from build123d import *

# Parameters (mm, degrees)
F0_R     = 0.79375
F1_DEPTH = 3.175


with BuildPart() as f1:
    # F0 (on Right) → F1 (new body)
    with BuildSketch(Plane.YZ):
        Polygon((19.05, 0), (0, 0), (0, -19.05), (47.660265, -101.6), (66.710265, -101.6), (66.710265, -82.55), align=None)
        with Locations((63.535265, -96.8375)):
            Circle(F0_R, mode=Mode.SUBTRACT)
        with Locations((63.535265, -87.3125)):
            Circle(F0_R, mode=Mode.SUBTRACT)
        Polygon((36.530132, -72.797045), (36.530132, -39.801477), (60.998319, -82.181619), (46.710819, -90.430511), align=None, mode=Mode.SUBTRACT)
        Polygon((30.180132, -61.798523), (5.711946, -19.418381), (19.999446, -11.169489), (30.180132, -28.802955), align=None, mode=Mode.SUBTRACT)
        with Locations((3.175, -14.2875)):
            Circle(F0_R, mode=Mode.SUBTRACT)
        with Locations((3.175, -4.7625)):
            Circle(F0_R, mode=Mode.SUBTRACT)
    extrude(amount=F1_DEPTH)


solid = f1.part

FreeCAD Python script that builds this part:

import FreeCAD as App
import Part
import Sketcher
from FreeCAD import Vector
Q = App.Units.Quantity


def add_polygon(sketch, points):
    """Adds a closed chain of lines whose ends are joined by coincident constraints."""
    first, n = sketch.GeometryCount, len(points)
    for a, b in zip(points, points[1:] + points[:1]):
        sketch.addGeometry(Part.LineSegment(App.Vector(*a, 0), App.Vector(*b, 0)), False)
    for i in range(n):
        sketch.addConstraint(Sketcher.Constraint("Coincident", first + i, 2, first + (i + 1) % n, 1))

doc = App.newDocument("Part")
body = doc.addObject("PartDesign::Body", "Body")

sketch1 = body.newObject("Sketcher::SketchObject", "Sketch")
sketch1.AttachmentSupport = (doc.getObject("YZ_Plane"), [""])
sketch1.MapMode = "FlatFace"
add_polygon(sketch1, [(19.05, 0), (0, 0), (0, -19.05), (47.660265, -101.6), (66.710265, -101.6), (66.710265, -82.55)])
sketch1.addGeometry(Part.Circle(Vector(63.535265, -96.8375, 0), Vector(0, 0, 1), 0.79375), False)
sketch1.addGeometry(Part.Circle(Vector(63.535265, -87.3125, 0), Vector(0, 0, 1), 0.79375), False)
add_polygon(sketch1, [(46.710819, -90.430511), (36.530132, -72.797045), (36.530132, -39.801477), (60.998319, -82.181619)])
add_polygon(sketch1, [(30.180132, -28.802955), (30.180132, -61.798523), (5.711946, -19.418381), (19.999446, -11.169489)])
sketch1.addGeometry(Part.Circle(Vector(3.175, -14.2875, 0), Vector(0, 0, 1), 0.79375), False)
sketch1.addGeometry(Part.Circle(Vector(3.175, -4.7625, 0), Vector(0, 0, 1), 0.79375), False)
sketch1.addConstraint(Sketcher.Constraint("Horizontal", 0))
sketch1.addConstraint(Sketcher.Constraint("Vertical", 1))
sketch1.addConstraint(Sketcher.Constraint("Horizontal", 3))
sketch1.addConstraint(Sketcher.Constraint("Vertical", 4))
sketch1.addConstraint(Sketcher.Constraint("Vertical", 9))
sketch1.addConstraint(Sketcher.Constraint("Vertical", 12))
sketch1.addConstraint(Sketcher.Constraint("Coincident", 0, 2, -1, 1))
sketch1.addConstraint(Sketcher.Constraint("Equal", 6, 7))
sketch1.addConstraint(Sketcher.Constraint("Equal", 7, 16))
sketch1.addConstraint(Sketcher.Constraint("Equal", 16, 17))
sketch1.addConstraint(Sketcher.Constraint("Parallel", 2, 5))
sketch1.addConstraint(Sketcher.Constraint("Parallel", 5, 8))
sketch1.addConstraint(Sketcher.Constraint("Parallel", 8, 10))
sketch1.addConstraint(Sketcher.Constraint("Perpendicular", 10, 11))
sketch1.addConstraint(Sketcher.Constraint("Perpendicular", 11, 13))
sketch1.addConstraint(Sketcher.Constraint("Perpendicular", 13, 14))
sketch1.addConstraint(Sketcher.Constraint("Perpendicular", 14, 15))
sketch1.addConstraint(Sketcher.Constraint("Vertical", 6, 3, 7, 3))
sketch1.addConstraint(Sketcher.Constraint("Vertical", 16, 3, 17, 3))
sketch1.addConstraint(Sketcher.Constraint("Equal", 0, 3))
sketch1.addConstraint(Sketcher.Constraint("Equal", 3, 1))
sketch1.addConstraint(Sketcher.Constraint("Equal", 9, 12))
sketch1.addConstraint(Sketcher.Constraint("Equal", 10, 13))
sketch1.addConstraint(Sketcher.Constraint("Diameter", 6, Q("0.0625 in")))
sketch1.addConstraint(Sketcher.Constraint("DistanceY", 2, 2, -1, 1, Q("4 in")))
sketch1.addConstraint(Sketcher.Constraint("Angle", 2, Q("-60 deg")))
sketch1.addConstraint(Sketcher.Constraint("DistanceX", 0, 2, 0, 1, Q("0.75 in")))
sketch1.addConstraint(Sketcher.Constraint("DistanceY", 6, 3, 16, 3, Q("3.25 in")))
sketch1.addConstraint(Sketcher.Constraint("DistanceY", 7, 3, 17, 3, Q("3.25 in")))
sketch1.addConstraint(Sketcher.Constraint("DistanceX", 12, 2, 8, 2, Q("0.25 in")))
sketch1.addConstraint(Sketcher.Constraint("DistanceY", 6, 3, -1, 1, Q("3.8125 in")))
sketch1.addConstraint(Sketcher.Constraint("DistanceY", 7, 3, -1, 1, Q("3.4375 in")))
sketch1.addConstraint(Sketcher.Constraint("DistanceX", -1, 1, 16, 3, Q("0.125 in")))
sketch1.addConstraint(Sketcher.Constraint("DistanceX", 2, 2, 6, 3, Q("0.625 in")))
sketch1.addConstraint(Sketcher.Constraint("DistanceX", 11, 2, 10, 2, Q("0.5625 in")))
sketch1.addConstraint(Sketcher.Constraint("DistanceX", -1, 1, 10, 2, Q("60.998319 mm")))
sketch1.addConstraint(Sketcher.Constraint("DistanceY", 10, 2, -1, 1, Q("82.181619 mm")))
sketch1.addConstraint(Sketcher.Constraint("DistanceY", 13, 2, -1, 1, Q("19.418381 mm")))
sketch1.addConstraint(Sketcher.Constraint("DistanceY", 8, 2, 12, 2, Q("10.998522 mm")))
pad1 = body.newObject("PartDesign::Pad", "Pad")
pad1.Profile = sketch1
pad1.Length = Q("0.125 in")

doc.recompute()
